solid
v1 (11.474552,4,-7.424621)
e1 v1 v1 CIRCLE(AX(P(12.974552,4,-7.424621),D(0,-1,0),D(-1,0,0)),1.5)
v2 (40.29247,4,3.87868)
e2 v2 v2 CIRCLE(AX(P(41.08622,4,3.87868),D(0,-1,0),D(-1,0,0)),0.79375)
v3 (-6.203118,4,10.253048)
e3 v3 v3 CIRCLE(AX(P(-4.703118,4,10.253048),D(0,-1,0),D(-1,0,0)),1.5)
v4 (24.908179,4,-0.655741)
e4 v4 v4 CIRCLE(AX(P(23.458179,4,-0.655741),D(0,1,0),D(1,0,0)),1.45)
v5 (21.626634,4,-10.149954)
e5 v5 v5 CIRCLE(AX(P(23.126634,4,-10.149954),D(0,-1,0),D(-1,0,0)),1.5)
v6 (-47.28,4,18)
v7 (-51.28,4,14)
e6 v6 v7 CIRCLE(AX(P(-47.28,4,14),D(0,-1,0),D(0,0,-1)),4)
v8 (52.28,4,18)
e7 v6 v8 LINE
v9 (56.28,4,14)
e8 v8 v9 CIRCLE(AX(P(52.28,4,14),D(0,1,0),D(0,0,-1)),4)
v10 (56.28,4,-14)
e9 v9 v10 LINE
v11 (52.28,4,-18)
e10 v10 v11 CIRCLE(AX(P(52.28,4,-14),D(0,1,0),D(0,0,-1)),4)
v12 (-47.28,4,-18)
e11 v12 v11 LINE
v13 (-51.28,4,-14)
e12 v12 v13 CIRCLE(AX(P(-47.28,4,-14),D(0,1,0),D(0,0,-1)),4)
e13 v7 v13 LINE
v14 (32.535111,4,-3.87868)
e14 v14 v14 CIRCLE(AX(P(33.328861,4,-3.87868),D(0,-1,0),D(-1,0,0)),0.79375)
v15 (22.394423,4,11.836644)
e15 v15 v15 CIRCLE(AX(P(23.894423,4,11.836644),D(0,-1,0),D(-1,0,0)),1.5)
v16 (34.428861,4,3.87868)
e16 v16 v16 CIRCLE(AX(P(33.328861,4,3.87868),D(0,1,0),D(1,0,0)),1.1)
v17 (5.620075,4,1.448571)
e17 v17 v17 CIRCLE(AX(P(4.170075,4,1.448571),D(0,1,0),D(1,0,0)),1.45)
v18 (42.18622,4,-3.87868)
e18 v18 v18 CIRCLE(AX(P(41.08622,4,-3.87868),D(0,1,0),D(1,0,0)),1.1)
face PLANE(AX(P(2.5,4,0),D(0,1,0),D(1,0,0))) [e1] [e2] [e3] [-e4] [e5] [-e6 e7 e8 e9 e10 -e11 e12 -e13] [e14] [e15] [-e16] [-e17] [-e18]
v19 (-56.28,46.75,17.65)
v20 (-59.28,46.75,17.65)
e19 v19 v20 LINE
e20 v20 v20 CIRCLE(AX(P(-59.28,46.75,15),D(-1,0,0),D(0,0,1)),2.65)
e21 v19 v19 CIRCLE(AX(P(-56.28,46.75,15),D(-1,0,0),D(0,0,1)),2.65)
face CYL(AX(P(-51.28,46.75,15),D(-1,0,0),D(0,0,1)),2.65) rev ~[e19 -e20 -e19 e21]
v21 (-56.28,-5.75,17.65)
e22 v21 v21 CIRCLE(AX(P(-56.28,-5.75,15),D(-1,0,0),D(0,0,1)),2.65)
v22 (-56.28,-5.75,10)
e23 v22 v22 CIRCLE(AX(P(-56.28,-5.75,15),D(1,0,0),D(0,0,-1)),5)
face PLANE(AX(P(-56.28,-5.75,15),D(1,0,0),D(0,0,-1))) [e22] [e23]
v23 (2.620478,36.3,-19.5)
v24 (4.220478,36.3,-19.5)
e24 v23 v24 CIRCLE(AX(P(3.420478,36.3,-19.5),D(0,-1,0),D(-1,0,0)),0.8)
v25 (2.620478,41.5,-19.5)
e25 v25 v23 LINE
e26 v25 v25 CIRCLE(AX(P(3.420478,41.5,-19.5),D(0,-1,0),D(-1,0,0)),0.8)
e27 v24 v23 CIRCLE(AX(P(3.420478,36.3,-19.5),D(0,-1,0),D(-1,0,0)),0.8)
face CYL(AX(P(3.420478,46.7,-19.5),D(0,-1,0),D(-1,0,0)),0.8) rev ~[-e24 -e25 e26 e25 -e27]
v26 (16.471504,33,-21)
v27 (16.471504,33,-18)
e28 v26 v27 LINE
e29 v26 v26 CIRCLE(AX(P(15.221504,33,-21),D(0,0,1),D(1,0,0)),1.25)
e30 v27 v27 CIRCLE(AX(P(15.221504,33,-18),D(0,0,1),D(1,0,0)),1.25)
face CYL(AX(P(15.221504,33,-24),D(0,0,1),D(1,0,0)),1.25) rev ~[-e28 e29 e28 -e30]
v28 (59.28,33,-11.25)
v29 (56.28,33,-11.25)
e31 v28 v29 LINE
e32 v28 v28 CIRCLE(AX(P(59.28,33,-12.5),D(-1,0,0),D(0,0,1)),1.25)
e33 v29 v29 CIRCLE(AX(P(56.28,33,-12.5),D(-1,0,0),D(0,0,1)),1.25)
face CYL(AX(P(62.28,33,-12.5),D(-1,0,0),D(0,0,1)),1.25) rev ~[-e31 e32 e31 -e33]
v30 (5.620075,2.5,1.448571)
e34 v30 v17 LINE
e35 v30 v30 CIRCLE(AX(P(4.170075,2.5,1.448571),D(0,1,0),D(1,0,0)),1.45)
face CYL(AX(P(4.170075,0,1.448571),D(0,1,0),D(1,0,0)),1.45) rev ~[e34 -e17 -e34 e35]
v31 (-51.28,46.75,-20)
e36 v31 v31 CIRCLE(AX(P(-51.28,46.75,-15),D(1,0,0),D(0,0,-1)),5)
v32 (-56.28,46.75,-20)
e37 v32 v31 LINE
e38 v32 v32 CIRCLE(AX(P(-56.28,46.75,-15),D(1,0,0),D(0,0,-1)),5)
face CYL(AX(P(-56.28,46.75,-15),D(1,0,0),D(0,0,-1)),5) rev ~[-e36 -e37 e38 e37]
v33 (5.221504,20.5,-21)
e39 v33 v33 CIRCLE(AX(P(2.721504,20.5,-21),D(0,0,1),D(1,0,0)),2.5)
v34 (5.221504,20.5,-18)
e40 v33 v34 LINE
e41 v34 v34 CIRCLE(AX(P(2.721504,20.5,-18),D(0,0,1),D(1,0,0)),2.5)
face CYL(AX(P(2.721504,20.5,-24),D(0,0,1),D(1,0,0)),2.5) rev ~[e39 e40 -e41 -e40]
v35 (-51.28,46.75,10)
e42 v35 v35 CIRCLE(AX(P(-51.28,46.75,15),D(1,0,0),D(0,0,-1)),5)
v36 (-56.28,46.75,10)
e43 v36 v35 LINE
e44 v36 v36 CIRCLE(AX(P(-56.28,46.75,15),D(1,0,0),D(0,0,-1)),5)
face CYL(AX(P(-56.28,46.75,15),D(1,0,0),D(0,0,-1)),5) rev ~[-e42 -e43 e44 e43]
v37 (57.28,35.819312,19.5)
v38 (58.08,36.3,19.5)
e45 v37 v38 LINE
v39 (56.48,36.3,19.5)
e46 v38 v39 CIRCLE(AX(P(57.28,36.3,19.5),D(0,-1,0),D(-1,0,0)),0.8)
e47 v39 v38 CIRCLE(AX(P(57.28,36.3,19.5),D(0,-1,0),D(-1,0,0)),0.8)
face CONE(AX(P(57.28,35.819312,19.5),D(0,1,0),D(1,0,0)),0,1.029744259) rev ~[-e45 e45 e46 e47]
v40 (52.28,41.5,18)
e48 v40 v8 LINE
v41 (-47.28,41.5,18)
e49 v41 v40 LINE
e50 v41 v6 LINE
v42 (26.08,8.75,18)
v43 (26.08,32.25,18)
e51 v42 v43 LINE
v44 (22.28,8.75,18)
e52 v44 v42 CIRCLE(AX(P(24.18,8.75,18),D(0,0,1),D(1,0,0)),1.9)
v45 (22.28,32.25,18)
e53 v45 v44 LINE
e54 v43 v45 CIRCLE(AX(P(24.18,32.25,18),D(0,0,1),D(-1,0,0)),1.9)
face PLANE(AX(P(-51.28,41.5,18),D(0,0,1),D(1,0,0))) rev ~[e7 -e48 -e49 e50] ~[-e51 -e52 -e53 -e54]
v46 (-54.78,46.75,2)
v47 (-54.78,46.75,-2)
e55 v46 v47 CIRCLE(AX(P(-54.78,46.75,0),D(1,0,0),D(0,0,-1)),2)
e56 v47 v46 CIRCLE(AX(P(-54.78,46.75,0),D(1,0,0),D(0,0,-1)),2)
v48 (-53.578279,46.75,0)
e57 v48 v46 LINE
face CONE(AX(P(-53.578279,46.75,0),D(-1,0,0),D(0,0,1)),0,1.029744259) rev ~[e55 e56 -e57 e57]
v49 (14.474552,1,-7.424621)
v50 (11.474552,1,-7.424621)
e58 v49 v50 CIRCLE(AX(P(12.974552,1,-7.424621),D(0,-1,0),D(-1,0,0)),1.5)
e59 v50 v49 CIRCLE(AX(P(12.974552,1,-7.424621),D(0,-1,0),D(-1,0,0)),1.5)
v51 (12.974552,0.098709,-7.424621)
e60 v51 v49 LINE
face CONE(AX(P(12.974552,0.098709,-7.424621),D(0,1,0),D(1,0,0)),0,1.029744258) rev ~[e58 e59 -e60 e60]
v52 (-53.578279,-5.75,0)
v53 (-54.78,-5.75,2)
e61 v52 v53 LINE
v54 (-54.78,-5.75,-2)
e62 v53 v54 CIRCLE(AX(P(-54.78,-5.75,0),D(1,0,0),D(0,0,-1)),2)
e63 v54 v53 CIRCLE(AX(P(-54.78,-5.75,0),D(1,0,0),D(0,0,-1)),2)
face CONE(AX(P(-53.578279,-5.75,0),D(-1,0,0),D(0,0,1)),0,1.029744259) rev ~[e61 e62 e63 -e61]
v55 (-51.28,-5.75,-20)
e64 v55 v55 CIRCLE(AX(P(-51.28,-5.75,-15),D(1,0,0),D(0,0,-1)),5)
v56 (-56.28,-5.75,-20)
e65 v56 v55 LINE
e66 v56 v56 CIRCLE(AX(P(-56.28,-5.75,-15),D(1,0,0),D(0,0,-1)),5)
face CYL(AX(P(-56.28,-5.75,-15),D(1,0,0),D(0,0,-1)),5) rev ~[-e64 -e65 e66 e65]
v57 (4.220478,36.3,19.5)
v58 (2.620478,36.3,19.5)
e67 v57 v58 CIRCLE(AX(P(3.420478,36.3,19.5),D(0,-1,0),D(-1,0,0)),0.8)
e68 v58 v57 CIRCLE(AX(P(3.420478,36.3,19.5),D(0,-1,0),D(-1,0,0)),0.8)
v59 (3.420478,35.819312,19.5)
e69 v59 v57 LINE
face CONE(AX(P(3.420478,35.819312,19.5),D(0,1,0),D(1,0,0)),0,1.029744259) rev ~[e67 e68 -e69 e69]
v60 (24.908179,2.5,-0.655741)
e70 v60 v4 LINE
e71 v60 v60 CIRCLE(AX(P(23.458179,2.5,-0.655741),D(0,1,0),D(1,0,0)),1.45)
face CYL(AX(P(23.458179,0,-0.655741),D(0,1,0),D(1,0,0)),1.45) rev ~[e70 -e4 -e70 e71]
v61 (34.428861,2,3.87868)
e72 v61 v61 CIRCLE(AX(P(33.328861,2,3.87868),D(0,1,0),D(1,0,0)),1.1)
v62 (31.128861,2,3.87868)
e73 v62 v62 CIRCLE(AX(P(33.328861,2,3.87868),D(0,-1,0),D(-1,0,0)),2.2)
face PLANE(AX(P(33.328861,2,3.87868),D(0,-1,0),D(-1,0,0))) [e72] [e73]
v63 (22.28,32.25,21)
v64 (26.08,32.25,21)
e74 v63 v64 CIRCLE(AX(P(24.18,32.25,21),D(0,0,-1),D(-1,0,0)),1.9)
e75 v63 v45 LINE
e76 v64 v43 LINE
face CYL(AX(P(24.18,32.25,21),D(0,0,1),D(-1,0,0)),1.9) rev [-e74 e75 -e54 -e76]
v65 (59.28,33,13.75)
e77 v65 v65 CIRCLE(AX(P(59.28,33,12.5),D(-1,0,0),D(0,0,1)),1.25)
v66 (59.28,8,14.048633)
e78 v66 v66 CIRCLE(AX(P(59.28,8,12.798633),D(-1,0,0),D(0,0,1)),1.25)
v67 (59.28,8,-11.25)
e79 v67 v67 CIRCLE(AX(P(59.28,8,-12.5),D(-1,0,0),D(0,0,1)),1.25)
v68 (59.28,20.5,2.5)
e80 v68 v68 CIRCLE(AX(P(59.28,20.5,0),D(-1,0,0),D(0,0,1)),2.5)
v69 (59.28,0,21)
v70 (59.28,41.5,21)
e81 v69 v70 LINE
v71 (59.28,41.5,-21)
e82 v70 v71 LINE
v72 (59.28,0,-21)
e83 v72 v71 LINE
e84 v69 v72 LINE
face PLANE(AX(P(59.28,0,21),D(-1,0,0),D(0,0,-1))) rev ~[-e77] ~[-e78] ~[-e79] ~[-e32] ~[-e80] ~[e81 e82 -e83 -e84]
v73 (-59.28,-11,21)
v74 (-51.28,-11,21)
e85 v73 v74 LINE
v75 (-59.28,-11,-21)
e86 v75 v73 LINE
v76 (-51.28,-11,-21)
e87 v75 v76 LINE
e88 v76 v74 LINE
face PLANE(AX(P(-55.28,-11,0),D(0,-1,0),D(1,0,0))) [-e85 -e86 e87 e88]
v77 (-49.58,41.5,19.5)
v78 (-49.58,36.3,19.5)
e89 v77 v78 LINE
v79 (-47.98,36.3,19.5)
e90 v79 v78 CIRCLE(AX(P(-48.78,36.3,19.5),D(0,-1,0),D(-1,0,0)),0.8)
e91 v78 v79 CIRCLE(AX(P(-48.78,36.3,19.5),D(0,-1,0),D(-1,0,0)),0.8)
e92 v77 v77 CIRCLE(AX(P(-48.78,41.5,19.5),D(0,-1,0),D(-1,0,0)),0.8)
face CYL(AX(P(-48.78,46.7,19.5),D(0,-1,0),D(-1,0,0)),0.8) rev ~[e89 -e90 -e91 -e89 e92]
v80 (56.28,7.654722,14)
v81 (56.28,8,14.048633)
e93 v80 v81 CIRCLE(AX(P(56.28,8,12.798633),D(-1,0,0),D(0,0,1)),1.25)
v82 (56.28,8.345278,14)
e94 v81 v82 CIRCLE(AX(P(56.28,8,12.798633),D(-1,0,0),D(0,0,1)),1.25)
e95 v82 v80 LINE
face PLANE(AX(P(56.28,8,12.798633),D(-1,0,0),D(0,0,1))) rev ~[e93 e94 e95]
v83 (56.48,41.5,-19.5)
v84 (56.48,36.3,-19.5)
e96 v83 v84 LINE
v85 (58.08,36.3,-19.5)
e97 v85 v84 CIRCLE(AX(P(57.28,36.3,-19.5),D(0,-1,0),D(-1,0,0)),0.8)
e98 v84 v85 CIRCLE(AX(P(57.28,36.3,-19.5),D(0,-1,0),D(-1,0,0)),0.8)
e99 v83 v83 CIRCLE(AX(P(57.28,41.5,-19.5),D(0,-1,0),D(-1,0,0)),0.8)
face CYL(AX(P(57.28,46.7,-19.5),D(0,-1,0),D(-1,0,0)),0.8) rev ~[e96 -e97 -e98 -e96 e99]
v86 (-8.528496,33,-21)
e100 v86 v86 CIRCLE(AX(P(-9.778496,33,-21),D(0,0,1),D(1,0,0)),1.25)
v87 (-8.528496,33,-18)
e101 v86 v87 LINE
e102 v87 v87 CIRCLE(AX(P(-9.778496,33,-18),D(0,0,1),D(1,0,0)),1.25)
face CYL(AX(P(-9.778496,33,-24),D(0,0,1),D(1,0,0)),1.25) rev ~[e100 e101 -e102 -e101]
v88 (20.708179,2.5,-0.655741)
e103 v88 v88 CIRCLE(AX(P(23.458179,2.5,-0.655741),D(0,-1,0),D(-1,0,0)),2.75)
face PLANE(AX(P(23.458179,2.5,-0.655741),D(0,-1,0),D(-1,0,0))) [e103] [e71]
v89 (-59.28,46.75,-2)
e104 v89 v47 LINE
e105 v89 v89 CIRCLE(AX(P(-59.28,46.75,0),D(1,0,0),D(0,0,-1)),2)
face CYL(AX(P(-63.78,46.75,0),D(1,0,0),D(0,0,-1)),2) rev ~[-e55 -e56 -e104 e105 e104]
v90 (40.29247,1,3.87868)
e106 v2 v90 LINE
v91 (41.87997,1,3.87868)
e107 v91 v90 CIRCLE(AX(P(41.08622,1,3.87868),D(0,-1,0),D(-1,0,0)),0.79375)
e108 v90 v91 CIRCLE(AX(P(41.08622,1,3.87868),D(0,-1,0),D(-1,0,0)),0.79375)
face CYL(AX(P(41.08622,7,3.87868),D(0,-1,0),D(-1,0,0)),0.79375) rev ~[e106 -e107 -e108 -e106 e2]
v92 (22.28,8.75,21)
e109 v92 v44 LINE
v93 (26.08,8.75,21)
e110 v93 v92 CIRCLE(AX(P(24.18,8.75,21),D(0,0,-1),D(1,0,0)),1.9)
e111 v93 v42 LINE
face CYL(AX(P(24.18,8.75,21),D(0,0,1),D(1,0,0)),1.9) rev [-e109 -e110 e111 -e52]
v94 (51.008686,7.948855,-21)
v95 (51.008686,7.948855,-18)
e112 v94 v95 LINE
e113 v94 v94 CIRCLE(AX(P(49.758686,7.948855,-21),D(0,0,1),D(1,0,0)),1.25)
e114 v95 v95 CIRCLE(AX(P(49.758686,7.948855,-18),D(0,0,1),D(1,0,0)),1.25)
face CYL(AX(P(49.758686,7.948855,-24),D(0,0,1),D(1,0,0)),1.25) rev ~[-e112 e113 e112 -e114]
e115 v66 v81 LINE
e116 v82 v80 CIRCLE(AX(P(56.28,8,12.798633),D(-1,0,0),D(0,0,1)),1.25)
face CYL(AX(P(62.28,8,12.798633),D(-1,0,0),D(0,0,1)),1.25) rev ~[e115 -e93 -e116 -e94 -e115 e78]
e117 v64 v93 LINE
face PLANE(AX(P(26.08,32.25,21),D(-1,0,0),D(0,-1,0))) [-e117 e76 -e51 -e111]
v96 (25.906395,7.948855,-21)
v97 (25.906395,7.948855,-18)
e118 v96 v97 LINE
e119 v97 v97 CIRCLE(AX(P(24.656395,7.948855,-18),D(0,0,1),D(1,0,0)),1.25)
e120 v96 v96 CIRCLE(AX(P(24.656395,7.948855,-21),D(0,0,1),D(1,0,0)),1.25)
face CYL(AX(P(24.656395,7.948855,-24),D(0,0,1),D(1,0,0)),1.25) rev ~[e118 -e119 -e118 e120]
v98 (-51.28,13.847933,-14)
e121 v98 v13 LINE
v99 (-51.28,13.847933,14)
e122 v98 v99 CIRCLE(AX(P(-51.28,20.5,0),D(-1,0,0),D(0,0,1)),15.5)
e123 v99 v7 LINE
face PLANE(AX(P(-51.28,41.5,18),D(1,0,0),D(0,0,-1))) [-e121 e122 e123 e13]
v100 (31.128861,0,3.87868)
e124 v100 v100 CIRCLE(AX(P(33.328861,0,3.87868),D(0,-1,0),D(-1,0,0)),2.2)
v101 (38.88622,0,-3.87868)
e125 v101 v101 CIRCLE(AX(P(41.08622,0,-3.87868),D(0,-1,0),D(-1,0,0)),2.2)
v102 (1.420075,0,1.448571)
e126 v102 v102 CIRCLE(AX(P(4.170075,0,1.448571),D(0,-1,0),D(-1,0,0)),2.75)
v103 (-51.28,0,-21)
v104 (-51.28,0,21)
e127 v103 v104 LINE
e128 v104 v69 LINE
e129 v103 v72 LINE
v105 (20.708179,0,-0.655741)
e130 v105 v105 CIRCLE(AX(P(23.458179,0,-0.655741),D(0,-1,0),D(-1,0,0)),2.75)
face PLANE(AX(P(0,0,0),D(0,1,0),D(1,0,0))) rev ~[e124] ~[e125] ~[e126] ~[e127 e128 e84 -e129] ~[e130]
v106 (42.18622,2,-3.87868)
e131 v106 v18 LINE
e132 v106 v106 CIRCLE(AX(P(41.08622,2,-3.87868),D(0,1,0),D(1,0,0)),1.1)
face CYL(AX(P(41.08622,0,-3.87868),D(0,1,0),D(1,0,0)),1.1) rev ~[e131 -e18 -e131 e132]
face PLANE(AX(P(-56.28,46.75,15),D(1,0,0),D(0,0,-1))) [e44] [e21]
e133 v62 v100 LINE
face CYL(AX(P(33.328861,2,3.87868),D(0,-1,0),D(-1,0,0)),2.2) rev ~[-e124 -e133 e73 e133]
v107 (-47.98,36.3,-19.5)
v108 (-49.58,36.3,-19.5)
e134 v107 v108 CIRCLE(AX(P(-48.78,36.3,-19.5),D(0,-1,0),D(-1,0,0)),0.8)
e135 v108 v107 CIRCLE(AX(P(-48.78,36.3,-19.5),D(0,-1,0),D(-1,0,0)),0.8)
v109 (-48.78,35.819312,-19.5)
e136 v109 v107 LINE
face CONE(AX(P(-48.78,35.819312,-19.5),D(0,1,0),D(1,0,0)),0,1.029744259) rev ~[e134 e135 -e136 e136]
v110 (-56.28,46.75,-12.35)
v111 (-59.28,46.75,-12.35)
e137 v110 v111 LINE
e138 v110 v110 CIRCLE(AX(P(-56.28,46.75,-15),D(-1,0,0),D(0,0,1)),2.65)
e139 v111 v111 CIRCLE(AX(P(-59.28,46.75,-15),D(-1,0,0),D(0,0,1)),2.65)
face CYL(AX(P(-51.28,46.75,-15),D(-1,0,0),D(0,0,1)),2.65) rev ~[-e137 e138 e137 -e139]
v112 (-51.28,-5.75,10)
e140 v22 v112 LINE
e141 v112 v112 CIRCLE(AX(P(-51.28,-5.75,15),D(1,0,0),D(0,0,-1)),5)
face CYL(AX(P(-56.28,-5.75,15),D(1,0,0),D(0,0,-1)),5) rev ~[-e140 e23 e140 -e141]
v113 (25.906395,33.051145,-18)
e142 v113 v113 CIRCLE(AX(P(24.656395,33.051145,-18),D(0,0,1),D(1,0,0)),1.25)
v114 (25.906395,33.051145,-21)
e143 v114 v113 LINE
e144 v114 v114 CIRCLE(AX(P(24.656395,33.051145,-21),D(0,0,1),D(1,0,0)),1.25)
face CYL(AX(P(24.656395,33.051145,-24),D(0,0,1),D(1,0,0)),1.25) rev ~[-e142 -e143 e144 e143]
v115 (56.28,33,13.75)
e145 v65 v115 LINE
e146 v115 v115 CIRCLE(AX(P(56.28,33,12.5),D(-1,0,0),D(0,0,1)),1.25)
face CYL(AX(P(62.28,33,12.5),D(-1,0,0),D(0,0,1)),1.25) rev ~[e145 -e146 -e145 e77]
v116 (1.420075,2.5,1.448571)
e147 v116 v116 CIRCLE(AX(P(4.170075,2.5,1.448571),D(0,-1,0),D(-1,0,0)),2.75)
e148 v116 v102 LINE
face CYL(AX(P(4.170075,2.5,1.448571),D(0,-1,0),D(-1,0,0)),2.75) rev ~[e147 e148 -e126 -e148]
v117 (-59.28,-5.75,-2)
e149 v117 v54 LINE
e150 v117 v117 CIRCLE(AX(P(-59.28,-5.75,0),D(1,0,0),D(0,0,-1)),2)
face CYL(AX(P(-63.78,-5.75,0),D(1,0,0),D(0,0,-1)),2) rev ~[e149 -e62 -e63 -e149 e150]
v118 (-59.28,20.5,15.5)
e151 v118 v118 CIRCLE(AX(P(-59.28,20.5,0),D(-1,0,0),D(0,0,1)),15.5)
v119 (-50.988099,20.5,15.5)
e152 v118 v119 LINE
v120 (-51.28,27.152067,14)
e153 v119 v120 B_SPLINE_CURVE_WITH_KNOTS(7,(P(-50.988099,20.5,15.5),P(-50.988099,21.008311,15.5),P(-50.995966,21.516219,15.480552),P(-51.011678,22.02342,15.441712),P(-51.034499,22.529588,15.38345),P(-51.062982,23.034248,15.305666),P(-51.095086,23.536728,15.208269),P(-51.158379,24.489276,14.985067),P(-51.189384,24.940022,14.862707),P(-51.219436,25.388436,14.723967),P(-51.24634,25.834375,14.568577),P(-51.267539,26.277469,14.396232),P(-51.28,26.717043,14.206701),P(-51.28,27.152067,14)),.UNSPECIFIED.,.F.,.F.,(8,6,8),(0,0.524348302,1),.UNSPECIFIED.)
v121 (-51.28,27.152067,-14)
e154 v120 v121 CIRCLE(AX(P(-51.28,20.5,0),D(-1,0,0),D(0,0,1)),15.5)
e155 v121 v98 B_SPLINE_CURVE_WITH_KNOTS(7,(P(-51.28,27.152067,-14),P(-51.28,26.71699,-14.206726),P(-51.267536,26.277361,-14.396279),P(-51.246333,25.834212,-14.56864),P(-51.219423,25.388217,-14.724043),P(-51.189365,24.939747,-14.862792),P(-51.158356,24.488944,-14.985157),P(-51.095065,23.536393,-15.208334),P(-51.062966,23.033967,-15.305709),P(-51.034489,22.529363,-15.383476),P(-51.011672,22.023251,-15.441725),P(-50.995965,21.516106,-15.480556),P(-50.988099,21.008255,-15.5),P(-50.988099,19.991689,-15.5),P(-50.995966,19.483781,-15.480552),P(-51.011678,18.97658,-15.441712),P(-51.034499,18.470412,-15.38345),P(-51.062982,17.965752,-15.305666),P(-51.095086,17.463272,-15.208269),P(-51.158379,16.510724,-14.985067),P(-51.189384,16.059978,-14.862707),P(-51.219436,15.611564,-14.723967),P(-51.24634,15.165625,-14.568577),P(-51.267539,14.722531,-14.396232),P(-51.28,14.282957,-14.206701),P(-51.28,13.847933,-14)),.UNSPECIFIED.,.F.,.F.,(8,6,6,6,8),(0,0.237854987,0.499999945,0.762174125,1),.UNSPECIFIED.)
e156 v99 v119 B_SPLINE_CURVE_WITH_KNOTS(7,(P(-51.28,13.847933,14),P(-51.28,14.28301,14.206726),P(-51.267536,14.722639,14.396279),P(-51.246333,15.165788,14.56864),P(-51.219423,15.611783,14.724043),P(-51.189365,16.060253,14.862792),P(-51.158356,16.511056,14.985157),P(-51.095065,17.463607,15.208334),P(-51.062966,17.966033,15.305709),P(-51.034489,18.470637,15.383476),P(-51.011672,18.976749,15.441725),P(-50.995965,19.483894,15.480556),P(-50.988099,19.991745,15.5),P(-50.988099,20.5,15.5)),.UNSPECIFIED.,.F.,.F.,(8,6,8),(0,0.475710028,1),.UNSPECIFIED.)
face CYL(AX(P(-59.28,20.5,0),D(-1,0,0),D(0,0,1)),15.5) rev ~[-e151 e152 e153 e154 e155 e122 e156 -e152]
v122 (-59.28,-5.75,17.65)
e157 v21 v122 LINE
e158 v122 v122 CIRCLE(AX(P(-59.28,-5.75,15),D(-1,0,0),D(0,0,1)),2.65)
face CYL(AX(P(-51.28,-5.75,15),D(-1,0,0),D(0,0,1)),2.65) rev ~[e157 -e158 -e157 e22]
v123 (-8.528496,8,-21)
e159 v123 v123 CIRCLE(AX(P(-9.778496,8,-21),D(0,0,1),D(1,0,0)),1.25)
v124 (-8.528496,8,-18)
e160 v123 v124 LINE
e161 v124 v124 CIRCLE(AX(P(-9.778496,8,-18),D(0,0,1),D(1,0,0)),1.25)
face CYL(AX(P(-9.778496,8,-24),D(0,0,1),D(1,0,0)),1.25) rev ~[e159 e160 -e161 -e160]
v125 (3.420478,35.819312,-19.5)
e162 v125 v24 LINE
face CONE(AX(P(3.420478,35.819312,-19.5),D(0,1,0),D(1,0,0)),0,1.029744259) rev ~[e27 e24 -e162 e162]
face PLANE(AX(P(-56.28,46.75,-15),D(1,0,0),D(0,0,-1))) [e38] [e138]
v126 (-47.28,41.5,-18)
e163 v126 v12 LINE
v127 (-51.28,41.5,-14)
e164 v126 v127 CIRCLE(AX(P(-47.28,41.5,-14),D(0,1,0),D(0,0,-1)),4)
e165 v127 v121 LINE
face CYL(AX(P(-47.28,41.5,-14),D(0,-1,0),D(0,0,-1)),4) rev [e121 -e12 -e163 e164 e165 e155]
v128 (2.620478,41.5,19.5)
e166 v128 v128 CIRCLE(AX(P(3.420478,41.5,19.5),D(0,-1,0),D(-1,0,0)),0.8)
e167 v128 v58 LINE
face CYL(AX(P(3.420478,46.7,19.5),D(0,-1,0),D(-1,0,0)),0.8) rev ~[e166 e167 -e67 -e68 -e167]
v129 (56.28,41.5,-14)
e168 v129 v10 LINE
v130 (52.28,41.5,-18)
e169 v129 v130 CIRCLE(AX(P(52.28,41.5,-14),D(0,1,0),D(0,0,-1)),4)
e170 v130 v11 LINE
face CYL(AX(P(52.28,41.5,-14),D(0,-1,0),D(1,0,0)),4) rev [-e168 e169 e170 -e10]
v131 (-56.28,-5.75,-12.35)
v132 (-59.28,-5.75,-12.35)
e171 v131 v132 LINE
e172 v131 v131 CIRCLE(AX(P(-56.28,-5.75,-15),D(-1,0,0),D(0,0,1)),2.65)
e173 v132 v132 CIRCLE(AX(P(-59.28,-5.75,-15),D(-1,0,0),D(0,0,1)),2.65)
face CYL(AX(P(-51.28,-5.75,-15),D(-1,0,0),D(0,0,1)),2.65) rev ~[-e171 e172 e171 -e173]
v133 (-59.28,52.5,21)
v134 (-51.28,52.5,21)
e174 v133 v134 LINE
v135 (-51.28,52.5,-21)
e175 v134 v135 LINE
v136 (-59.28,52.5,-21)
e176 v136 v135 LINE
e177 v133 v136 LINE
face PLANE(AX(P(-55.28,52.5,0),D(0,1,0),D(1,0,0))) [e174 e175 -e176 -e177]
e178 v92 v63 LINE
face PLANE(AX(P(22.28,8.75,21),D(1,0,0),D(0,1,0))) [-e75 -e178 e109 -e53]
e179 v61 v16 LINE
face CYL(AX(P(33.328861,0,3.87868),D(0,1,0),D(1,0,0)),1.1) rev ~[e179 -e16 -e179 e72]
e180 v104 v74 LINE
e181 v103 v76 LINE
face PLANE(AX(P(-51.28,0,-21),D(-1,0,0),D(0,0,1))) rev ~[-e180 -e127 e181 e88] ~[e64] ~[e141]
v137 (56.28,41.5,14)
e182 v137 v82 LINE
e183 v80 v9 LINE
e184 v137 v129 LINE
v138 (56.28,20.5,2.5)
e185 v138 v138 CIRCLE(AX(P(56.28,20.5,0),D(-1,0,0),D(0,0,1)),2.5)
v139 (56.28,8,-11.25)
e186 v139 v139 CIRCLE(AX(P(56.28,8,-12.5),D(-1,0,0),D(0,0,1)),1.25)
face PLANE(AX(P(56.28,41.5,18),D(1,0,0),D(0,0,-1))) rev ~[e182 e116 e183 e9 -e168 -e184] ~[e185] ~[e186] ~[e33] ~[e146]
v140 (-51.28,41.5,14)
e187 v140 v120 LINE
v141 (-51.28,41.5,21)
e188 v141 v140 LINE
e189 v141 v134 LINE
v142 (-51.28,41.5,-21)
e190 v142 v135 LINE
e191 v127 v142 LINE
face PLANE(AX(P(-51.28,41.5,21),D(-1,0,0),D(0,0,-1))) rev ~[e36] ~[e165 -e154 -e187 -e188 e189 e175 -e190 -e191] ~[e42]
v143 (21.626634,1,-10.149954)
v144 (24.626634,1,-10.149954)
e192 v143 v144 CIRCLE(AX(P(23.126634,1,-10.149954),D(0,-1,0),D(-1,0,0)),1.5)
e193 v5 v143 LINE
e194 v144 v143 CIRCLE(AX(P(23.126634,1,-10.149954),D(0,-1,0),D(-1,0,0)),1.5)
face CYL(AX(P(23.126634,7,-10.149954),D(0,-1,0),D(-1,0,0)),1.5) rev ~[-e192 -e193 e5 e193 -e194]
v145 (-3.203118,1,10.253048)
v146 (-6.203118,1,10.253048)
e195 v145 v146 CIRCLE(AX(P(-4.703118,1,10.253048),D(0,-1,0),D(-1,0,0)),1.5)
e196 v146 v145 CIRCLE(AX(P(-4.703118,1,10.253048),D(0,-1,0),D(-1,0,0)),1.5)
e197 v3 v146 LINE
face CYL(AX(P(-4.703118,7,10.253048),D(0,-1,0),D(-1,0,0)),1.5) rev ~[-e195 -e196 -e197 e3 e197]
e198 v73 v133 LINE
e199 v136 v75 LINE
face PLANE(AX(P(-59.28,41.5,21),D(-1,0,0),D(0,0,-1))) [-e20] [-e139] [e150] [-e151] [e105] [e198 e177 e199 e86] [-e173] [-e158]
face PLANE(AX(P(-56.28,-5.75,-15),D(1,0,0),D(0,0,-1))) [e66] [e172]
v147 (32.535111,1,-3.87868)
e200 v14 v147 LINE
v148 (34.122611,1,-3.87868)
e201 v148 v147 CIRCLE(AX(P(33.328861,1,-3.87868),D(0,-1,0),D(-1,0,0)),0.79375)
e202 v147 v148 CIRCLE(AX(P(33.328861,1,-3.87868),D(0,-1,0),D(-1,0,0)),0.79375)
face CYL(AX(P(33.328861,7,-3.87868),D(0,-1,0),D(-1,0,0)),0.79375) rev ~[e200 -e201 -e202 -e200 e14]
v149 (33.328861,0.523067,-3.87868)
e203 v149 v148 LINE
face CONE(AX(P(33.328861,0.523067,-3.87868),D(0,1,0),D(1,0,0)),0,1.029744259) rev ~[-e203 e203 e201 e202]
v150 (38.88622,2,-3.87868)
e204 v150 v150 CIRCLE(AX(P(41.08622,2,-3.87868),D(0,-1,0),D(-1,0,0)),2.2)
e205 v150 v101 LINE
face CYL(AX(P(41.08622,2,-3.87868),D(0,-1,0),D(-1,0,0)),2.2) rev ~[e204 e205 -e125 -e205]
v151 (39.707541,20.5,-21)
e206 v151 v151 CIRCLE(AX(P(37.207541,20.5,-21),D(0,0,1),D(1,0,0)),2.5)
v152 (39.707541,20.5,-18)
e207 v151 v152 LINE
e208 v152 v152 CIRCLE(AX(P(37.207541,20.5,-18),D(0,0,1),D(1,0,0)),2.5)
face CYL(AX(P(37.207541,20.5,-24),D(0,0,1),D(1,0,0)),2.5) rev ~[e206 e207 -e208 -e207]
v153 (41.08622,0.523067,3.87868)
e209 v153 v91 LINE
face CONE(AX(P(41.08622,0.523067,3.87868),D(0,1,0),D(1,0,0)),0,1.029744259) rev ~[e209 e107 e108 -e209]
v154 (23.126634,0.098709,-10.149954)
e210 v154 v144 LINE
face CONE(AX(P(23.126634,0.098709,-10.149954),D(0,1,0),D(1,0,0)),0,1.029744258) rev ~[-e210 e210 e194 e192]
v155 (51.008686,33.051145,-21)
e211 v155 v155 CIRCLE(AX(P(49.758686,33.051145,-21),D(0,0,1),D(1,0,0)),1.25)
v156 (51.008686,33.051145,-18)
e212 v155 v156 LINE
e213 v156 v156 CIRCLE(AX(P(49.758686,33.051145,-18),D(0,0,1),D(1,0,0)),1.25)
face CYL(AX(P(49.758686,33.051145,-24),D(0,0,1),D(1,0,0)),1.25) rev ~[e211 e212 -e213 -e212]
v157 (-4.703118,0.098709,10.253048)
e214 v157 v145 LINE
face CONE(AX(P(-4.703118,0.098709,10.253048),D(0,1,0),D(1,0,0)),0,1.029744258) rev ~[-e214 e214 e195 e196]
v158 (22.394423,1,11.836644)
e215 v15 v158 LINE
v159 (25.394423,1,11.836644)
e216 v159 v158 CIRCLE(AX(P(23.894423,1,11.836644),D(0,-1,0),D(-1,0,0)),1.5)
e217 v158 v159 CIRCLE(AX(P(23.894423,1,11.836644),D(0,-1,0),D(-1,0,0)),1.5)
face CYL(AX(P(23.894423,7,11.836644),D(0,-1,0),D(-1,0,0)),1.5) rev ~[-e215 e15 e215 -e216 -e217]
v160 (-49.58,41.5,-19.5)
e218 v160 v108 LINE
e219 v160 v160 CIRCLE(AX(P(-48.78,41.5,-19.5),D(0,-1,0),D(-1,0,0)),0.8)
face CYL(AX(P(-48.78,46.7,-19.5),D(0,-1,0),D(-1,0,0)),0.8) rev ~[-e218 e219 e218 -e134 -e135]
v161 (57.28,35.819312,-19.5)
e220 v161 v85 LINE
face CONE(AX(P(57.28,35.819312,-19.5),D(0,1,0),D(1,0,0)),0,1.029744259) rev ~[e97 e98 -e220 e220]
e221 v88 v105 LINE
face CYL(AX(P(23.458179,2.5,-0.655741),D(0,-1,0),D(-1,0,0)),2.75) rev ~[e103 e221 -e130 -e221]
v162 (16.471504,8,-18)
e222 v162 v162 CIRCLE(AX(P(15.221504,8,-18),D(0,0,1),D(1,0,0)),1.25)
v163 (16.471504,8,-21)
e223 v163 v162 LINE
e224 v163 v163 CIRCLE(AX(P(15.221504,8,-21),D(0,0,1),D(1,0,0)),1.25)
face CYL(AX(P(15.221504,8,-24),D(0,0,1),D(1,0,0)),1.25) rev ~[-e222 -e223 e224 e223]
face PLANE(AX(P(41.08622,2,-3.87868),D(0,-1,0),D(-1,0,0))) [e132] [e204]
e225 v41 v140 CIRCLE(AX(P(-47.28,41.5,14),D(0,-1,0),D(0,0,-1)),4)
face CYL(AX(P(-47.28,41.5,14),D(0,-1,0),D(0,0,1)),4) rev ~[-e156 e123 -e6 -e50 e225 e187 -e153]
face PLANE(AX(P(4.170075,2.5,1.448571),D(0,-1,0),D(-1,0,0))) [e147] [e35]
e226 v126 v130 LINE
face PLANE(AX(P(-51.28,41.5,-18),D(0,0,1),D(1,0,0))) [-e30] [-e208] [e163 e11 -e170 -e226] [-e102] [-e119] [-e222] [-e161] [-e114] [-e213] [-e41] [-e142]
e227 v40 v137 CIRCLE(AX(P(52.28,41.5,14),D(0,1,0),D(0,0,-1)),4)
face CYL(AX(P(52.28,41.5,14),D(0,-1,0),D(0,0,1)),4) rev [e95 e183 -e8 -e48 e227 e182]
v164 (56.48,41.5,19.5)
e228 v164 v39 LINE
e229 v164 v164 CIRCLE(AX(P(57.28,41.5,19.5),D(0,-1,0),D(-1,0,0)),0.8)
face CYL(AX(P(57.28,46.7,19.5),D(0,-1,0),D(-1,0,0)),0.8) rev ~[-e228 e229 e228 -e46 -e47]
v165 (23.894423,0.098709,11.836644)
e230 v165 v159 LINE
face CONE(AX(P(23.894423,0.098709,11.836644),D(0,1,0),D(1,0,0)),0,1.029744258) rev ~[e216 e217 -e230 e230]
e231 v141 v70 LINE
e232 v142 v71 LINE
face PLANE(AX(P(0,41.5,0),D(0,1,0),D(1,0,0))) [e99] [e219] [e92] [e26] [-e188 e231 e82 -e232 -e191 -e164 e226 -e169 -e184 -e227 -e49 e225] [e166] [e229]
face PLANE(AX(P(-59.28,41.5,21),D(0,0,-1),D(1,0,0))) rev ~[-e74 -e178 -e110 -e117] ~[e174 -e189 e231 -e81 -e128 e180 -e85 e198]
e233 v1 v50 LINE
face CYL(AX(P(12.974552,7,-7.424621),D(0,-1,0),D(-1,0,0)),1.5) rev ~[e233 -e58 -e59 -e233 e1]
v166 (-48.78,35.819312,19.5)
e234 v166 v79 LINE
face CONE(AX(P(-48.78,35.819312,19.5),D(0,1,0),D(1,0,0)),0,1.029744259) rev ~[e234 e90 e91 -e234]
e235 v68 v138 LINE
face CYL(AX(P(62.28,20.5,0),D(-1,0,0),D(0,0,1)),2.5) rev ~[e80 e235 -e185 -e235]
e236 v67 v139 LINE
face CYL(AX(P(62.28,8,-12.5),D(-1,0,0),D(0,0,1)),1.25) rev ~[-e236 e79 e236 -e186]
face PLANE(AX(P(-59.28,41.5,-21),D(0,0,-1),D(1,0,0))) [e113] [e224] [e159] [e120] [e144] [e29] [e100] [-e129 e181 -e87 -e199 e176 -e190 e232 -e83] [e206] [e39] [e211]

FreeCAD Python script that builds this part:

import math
import FreeCAD as App
import Part
import Sketcher

V = App.Vector
Q = App.Units.Quantity


def edges_at(feature, points):
    """Names of the edges that pass closest to the given points."""
    edges = feature.Shape.Edges
    near = lambda p: min(range(len(edges)), key=lambda i: edges[i].distToShape(Part.Vertex(*p))[0])
    return sorted({f"Edge{near(p) + 1}" for p in points})

doc = App.newDocument("Part")
body = doc.addObject("PartDesign::Body", "Body")

# Sketch on XZ plane
sketch1 = body.newObject("Sketcher::SketchObject", "Sketch")
sketch1.AttachmentSupport = (doc.getObject("XZ_Plane"), [""])
sketch1.MapMode = "FlatFace"
sketch1.addGeometry([
    Part.LineSegment(V(-59, -21, 0), V(-59, 21, 0)),
    Part.LineSegment(V(-59, 21, 0), V(59, 21, 0)),
    Part.LineSegment(V(59, 21, 0), V(59, -21, 0)),
    Part.LineSegment(V(59, -21, 0), V(-59, -21, 0)),
], False)
sketch1.addConstraint([
    Sketcher.Constraint("Coincident", 0, 2, 1, 1),
    Sketcher.Constraint("Coincident", 1, 2, 2, 1),
    Sketcher.Constraint("Coincident", 2, 2, 3, 1),
    Sketcher.Constraint("Coincident", 3, 2, 0, 1),
    Sketcher.Constraint("Vertical", 0),
    Sketcher.Constraint("Horizontal", 1),
    Sketcher.Constraint("Vertical", 2),
    Sketcher.Constraint("Horizontal", 3),
    Sketcher.Constraint("Symmetric", 0, 2, 2, 2, -1, 1),
    Sketcher.Constraint("DistanceY", 0, 1, 0, 2, Q("42 mm")),
    Sketcher.Constraint("DistanceX", 1, 1, 1, 2, Q("118.56 mm")),
])
pad1 = body.newObject("PartDesign::Pad", "Pad")
pad1.Profile = sketch1
pad1.Length = 41.5
pad1.Reversed = True

# Sketch on XZ plane
sketch2 = body.newObject("Sketcher::SketchObject", "Sketch001")
sketch2.AttachmentSupport = (doc.getObject("XZ_Plane"), [""])
sketch2.MapMode = "FlatFace"
sketch2.AttachmentOffset = App.Placement(V(0, 0, -41.5), App.Rotation())
sketch2.addGeometry([
    Part.LineSegment(V(-51, -18, 0), V(-51, 18, 0)),
    Part.LineSegment(V(-51, 18, 0), V(56, 18, 0)),
    Part.LineSegment(V(56, 18, 0), V(56, -18, 0)),
    Part.LineSegment(V(56, -18, 0), V(-51, -18, 0)),
], False)
sketch2.addConstraint([
    Sketcher.Constraint("Coincident", 0, 2, 1, 1),
    Sketcher.Constraint("Coincident", 1, 2, 2, 1),
    Sketcher.Constraint("Coincident", 2, 2, 3, 1),
    Sketcher.Constraint("Coincident", 3, 2, 0, 1),
    Sketcher.Constraint("Vertical", 0),
    Sketcher.Constraint("Horizontal", 1),
    Sketcher.Constraint("Vertical", 2),
    Sketcher.Constraint("Horizontal", 3),
    Sketcher.Constraint("DistanceY", 0, 1, 0, 2, Q("36 mm")),
    Sketcher.Constraint("DistanceY", -1, 1, 0, 2, Q("18 mm")),
    Sketcher.Constraint("DistanceX", 1, 1, 1, 2, Q("107.56 mm")),
    Sketcher.Constraint("DistanceX", 0, 2, -1, 1, Q("51.28 mm")),
])
pocket1 = body.newObject("PartDesign::Pocket", "Pocket")
pocket1.Profile = sketch2
pocket1.Length = 37.5
pocket1.Reversed = True
doc.recompute()

fillet = body.newObject("PartDesign::Fillet", "Fillet")
fillet.Base = (pocket1, edges_at(pocket1, [
    (-51.28, 22.75, 18),
    (-51.28, 22.75, -18),
    (56.28, 22.75, -18),
    (56.28, 22.75, 18),
]))
fillet.Radius = 4

# Sketch on YZ plane
sketch3 = body.newObject("Sketcher::SketchObject", "Sketch002")
sketch3.AttachmentSupport = (doc.getObject("YZ_Plane"), [""])
sketch3.MapMode = "FlatFace"
sketch3.AttachmentOffset = App.Placement(V(0, 0, -59.28), App.Rotation())
sketch3.addGeometry(Part.Circle(V(20, 0, 0), V(0, 0, 1), 16), False)
sketch3.addConstraint([
    Sketcher.Constraint("PointOnObject", 0, 3, -1),
    Sketcher.Constraint("Diameter", 0, Q("31 mm")),
    Sketcher.Constraint("DistanceX", -1, 1, 0, 3, Q("20.5 mm")),
])
pocket2 = body.newObject("PartDesign::Pocket", "Pocket001")
pocket2.Profile = sketch3
pocket2.Length = 8.291901
pocket2.Reversed = True

# Sketch on XY plane
sketch4 = body.newObject("Sketcher::SketchObject", "Sketch003")
sketch4.AttachmentSupport = (doc.getObject("XY_Plane"), [""])
sketch4.MapMode = "FlatFace"
sketch4.AttachmentOffset = App.Placement(V(0, 0, 21), App.Rotation())
sketch4.addGeometry([
    Part.LineSegment(V(26.1, 8.8, 0), V(26.1, 32.2, 0)),
    Part.ArcOfCircle(Part.Circle(V(24.2, 32.2, 0), V(0, 0, 1), 1.9), math.radians(0), math.radians(180)),
    Part.LineSegment(V(22.3, 32.2, 0), V(22.3, 8.8, 0)),
    Part.ArcOfCircle(Part.Circle(V(24.2, 8.8, 0), V(0, 0, 1), 1.9), math.radians(180), math.radians(360)),
], False)
sketch4.addConstraint([
    Sketcher.Constraint("Tangent", 0, 2, 1, 1),
    Sketcher.Constraint("Tangent", 1, 2, 2, 1),
    Sketcher.Constraint("Tangent", 2, 2, 3, 1),
    Sketcher.Constraint("Tangent", 3, 2, 0, 1),
    Sketcher.Constraint("Vertical", 0),
    Sketcher.Constraint("Vertical", 2),
    Sketcher.Constraint("Radius", 1, Q("1.9 mm")),
    Sketcher.Constraint("DistanceY", 0, 1, 0, 2, Q("23.5 mm")),
    Sketcher.Constraint("DistanceX", -1, 1, 1, 3, Q("24.18 mm")),
    Sketcher.Constraint("DistanceY", -1, 1, 1, 3, Q("32.25 mm")),
])
pocket3 = body.newObject("PartDesign::Pocket", "Pocket002")
pocket3.Profile = sketch4
pocket3.Type = "UpToFirst"

# Sketch on XZ plane
sketch5 = body.newObject("Sketcher::SketchObject", "Sketch004")
sketch5.AttachmentSupport = (doc.getObject("XZ_Plane"), [""])
sketch5.MapMode = "FlatFace"
sketch5.addGeometry([
    Part.LineSegment(V(-59, 21, 0), V(-59, -21, 0)),
    Part.LineSegment(V(-59, -21, 0), V(-51, -21, 0)),
    Part.LineSegment(V(-51, -21, 0), V(-51, 21, 0)),
    Part.LineSegment(V(-51, 21, 0), V(-59, 21, 0)),
], False)
sketch5.addConstraint([
    Sketcher.Constraint("Coincident", 0, 2, 1, 1),
    Sketcher.Constraint("Coincident", 1, 2, 2, 1),
    Sketcher.Constraint("Coincident", 2, 2, 3, 1),
    Sketcher.Constraint("Coincident", 3, 2, 0, 1),
    Sketcher.Constraint("Vertical", 0),
    Sketcher.Constraint("Horizontal", 1),
    Sketcher.Constraint("Vertical", 2),
    Sketcher.Constraint("Horizontal", 3),
    Sketcher.Constraint("DistanceX", 1, 1, 1, 2, Q("8 mm")),
    Sketcher.Constraint("DistanceY", 0, 2, 0, 1, Q("42 mm")),
    Sketcher.Constraint("DistanceY", 0, 2, -1, 1, Q("21 mm")),
    Sketcher.Constraint("DistanceX", 0, 2, -1, 1, Q("59.28 mm")),
])
pad2 = body.newObject("PartDesign::Pad", "Pad001")
pad2.Profile = sketch5
pad2.Length = 11

# Sketch on XZ plane
sketch6 = body.newObject("Sketcher::SketchObject", "Sketch005")
sketch6.AttachmentSupport = (doc.getObject("XZ_Plane"), [""])
sketch6.MapMode = "FlatFace"
sketch6.AttachmentOffset = App.Placement(V(0, 0, -41.5), App.Rotation())
sketch6.addGeometry([
    Part.LineSegment(V(-59, -21, 0), V(-59, 21, 0)),
    Part.LineSegment(V(-59, 21, 0), V(-51, 21, 0)),
    Part.LineSegment(V(-51, 21, 0), V(-51, -21, 0)),
    Part.LineSegment(V(-51, -21, 0), V(-59, -21, 0)),
], False)
sketch6.addConstraint([
    Sketcher.Constraint("Coincident", 0, 2, 1, 1),
    Sketcher.Constraint("Coincident", 1, 2, 2, 1),
    Sketcher.Constraint("Coincident", 2, 2, 3, 1),
    Sketcher.Constraint("Coincident", 3, 2, 0, 1),
    Sketcher.Constraint("Vertical", 0),
    Sketcher.Constraint("Horizontal", 1),
    Sketcher.Constraint("Vertical", 2),
    Sketcher.Constraint("Horizontal", 3),
    Sketcher.Constraint("DistanceX", 1, 1, 1, 2, Q("8 mm")),
    Sketcher.Constraint("DistanceY", 0, 1, 0, 2, Q("42 mm")),
    Sketcher.Constraint("DistanceY", -1, 1, 0, 2, Q("21 mm")),
    Sketcher.Constraint("DistanceX", 0, 2, -1, 1, Q("59.28 mm")),
])
pad3 = body.newObject("PartDesign::Pad", "Pad002")
pad3.Profile = sketch6
pad3.Length = 11
pad3.Reversed = True

# Sketch on YZ plane
sketch7 = body.newObject("Sketcher::SketchObject", "Sketch006")
sketch7.AttachmentSupport = (doc.getObject("YZ_Plane"), [""])
sketch7.MapMode = "FlatFace"
sketch7.AttachmentOffset = App.Placement(V(0, 0, -59.28), App.Rotation())
sketch7.addGeometry([
    Part.Circle(V(46.8, 0, 0), V(0, 0, 1), 2),
    Part.Circle(V(-5.8, 0, 0), V(0, 0, 1), 2),
], False)
sketch7.addConstraint([
    Sketcher.Constraint("Equal", 0, 1),
    Sketcher.Constraint("PointOnObject", 0, 3, -1),
    Sketcher.Constraint("PointOnObject", 1, 3, -1),
    Sketcher.Constraint("Diameter", 0, Q("4 mm")),
    Sketcher.Constraint("DistanceX", 1, 3, 0, 3, Q("52.5 mm")),
    Sketcher.Constraint("DistanceX", -1, 1, 0, 3, Q("46.75 mm")),
])
doc.recompute()
hole = body.newObject("PartDesign::Hole", "Hole")
hole.Profile = sketch7
hole.ThreadType = "None"
hole.Diameter = 4
hole.DepthType = "Dimension"
hole.Depth = 4.5
hole.DrillPoint = "Angled"
hole.DrillPointAngle = 118
hole.Reversed = True

# Sketch on YZ plane
sketch8 = body.newObject("Sketcher::SketchObject", "Sketch007")
sketch8.AttachmentSupport = (doc.getObject("YZ_Plane"), [""])
sketch8.MapMode = "FlatFace"
sketch8.AttachmentOffset = App.Placement(V(0, 0, -51.28), App.Rotation())
sketch8.addGeometry([
    Part.Circle(V(46.8, 15, 0), V(0, 0, 1), 2.6),
    Part.Circle(V(46.8, -15, 0), V(0, 0, 1), 2.6),
    Part.Circle(V(-5.8, 15, 0), V(0, 0, 1), 2.6),
    Part.Circle(V(-5.8, -15, 0), V(0, 0, 1), 2.6),
], False)
sketch8.addConstraint([
    Sketcher.Constraint("Equal", 0, 1),
    Sketcher.Constraint("Equal", 1, 2),
    Sketcher.Constraint("Equal", 2, 3),
    Sketcher.Constraint("Symmetric", 0, 3, 1, 3, -1),
    Sketcher.Constraint("Symmetric", 2, 3, 3, 3, -1),
    Sketcher.Constraint("Horizontal", 0, 3, 2, 3),
    Sketcher.Constraint("Diameter", 0, Q("5.3 mm")),
    Sketcher.Constraint("DistanceY", -1, 1, 0, 3, Q("15 mm")),
    Sketcher.Constraint("DistanceX", 2, 3, 0, 3, Q("52.5 mm")),
    Sketcher.Constraint("DistanceX", -1, 1, 0, 3, Q("46.75 mm")),
])
doc.recompute()
hole2 = body.newObject("PartDesign::Hole", "Hole001")
hole2.Profile = sketch8
hole2.ThreadType = "None"
hole2.Diameter = 5.3
hole2.DepthType = "ThroughAll"
hole2.HoleCutType = "Counterbore"
hole2.HoleCutDiameter = 10
hole2.HoleCutDepth = 5

# Sketch on XY plane
sketch9 = body.newObject("Sketcher::SketchObject", "Sketch008")
sketch9.AttachmentSupport = (doc.getObject("XY_Plane"), [""])
sketch9.MapMode = "FlatFace"
sketch9.AttachmentOffset = App.Placement(V(0, 0, -21), App.Rotation())
sketch9.addGeometry([
    Part.Circle(V(2.7, 20.5, 0), V(0, 0, 1), 2.5),
    Part.Circle(V(37.2, 20.5, 0), V(0, 0, 1), 2.5),
], False)
sketch9.addConstraint([
    Sketcher.Constraint("Equal", 0, 1),
    Sketcher.Constraint("Horizontal", 0, 3, 1, 3),
    Sketcher.Constraint("Diameter", 0, Q("5 mm")),
    Sketcher.Constraint("DistanceY", -1, 1, 0, 3, Q("20.5 mm")),
    Sketcher.Constraint("DistanceX", -1, 1, 1, 3, Q("37.207541 mm")),
    Sketcher.Constraint("DistanceX", -1, 1, 0, 3, Q("2.721504 mm")),
])
doc.recompute()
hole3 = body.newObject("PartDesign::Hole", "Hole002")
hole3.Profile = sketch9
hole3.ThreadType = "None"
hole3.Diameter = 5
hole3.DepthType = "Dimension"
hole3.Depth = 3
hole3.DrillPoint = "Flat"
hole3.Reversed = True

# Sketch on YZ plane
sketch10 = body.newObject("Sketcher::SketchObject", "Sketch009")
sketch10.AttachmentSupport = (doc.getObject("YZ_Plane"), [""])
sketch10.MapMode = "FlatFace"
sketch10.AttachmentOffset = App.Placement(V(0, 0, 59.28), App.Rotation())
sketch10.addGeometry(Part.Circle(V(20.5, 0, 0), V(0, 0, 1), 2.5), False)
sketch10.addConstraint([
    Sketcher.Constraint("PointOnObject", 0, 3, -1),
    Sketcher.Constraint("Diameter", 0, Q("5 mm")),
    Sketcher.Constraint("DistanceX", -1, 1, 0, 3, Q("20.5 mm")),
])
doc.recompute()
hole4 = body.newObject("PartDesign::Hole", "Hole003")
hole4.Profile = sketch10
hole4.ThreadType = "None"
hole4.Diameter = 5
hole4.DepthType = "Dimension"
hole4.Depth = 3
hole4.DrillPoint = "Flat"

# Sketch on XY plane
sketch11 = body.newObject("Sketcher::SketchObject", "Sketch010")
sketch11.AttachmentSupport = (doc.getObject("XY_Plane"), [""])
sketch11.MapMode = "FlatFace"
sketch11.AttachmentOffset = App.Placement(V(0, 0, -21), App.Rotation())
sketch11.addGeometry([
    Part.Circle(V(-9.8, 8, 0), V(0, 0, 1), 1.2),  # 0
    Part.Circle(V(15.2, 8, 0), V(0, 0, 1), 1.2),  # 1
    Part.Circle(V(15.2, 33, 0), V(0, 0, 1), 1.2),  # 2
    Part.Circle(V(-9.8, 33, 0), V(0, 0, 1), 1.2),  # 3
    Part.Circle(V(24.7, 7.9, 0), V(0, 0, 1), 1.2),  # 4
    Part.Circle(V(49.8, 7.9, 0), V(0, 0, 1), 1.2),  # 5
    Part.Circle(V(49.8, 33.1, 0), V(0, 0, 1), 1.2),  # 6
    Part.Circle(V(24.7, 33.1, 0), V(0, 0, 1), 1.2),  # 7
], False)
sketch11.addConstraint([
    Sketcher.Constraint("Equal", 0, 1),
    Sketcher.Constraint("Equal", 1, 2),
    Sketcher.Constraint("Equal", 2, 3),
    Sketcher.Constraint("Equal", 3, 4),
    Sketcher.Constraint("Equal", 4, 5),
    Sketcher.Constraint("Equal", 5, 6),
    Sketcher.Constraint("Equal", 6, 7),
    Sketcher.Constraint("Horizontal", 0, 3, 1, 3),
    Sketcher.Constraint("Horizontal", 2, 3, 3, 3),
    Sketcher.Constraint("Horizontal", 4, 3, 5, 3),
    Sketcher.Constraint("Horizontal", 6, 3, 7, 3),
    Sketcher.Constraint("Vertical", 1, 3, 2, 3),
    Sketcher.Constraint("Vertical", 0, 3, 3, 3),
    Sketcher.Constraint("Vertical", 5, 3, 6, 3),
    Sketcher.Constraint("Vertical", 4, 3, 7, 3),
    Sketcher.Constraint("Diameter", 0, Q("2.5 mm")),
    Sketcher.Constraint("DistanceY", -1, 1, 0, 3, Q("8 mm")),
    Sketcher.Constraint("DistanceY", -1, 1, 2, 3, Q("33 mm")),
    Sketcher.Constraint("DistanceX", 0, 3, 1, 3, Q("25 mm")),
    Sketcher.Constraint("DistanceX", 1, 3, 4, 3, Q("9.434892 mm")),
    Sketcher.Constraint("DistanceX", 4, 3, 5, 3, Q("25.102291 mm")),
    Sketcher.Constraint("DistanceY", 5, 3, 6, 3, Q("25.102291 mm")),
    Sketcher.Constraint("DistanceX", 0, 3, -1, 1, Q("9.778496 mm")),
    Sketcher.Constraint("DistanceY", -1, 1, 4, 3, Q("7.948855 mm")),
])
doc.recompute()
hole5 = body.newObject("PartDesign::Hole", "Hole004")
hole5.Profile = sketch11
hole5.ThreadType = "None"
hole5.Diameter = 2.5
hole5.DepthType = "Dimension"
hole5.Depth = 3
hole5.DrillPoint = "Flat"
hole5.Reversed = True

# Sketch on YZ plane
sketch12 = body.newObject("Sketcher::SketchObject", "Sketch011")
sketch12.AttachmentSupport = (doc.getObject("YZ_Plane"), [""])
sketch12.MapMode = "FlatFace"
sketch12.AttachmentOffset = App.Placement(V(0, 0, 59.28), App.Rotation())
sketch12.addGeometry([
    Part.Circle(V(8, -12.5, 0), V(0, 0, 1), 1.2),
    Part.Circle(V(8, 12.8, 0), V(0, 0, 1), 1.2),
    Part.Circle(V(33, 12.5, 0), V(0, 0, 1), 1.2),
    Part.Circle(V(33, -12.5, 0), V(0, 0, 1), 1.2),
], False)
sketch12.addConstraint([
    Sketcher.Constraint("Equal", 0, 1),
    Sketcher.Constraint("Equal", 1, 2),
    Sketcher.Constraint("Equal", 2, 3),
    Sketcher.Constraint("Symmetric", 2, 3, 3, 3, -1),
    Sketcher.Constraint("Horizontal", 0, 3, 3, 3),
    Sketcher.Constraint("Vertical", 0, 3, 1, 3),
    Sketcher.Constraint("Diameter", 0, Q("2.5 mm")),
    Sketcher.Constraint("DistanceX", -1, 1, 0, 3, Q("8 mm")),
    Sketcher.Constraint("DistanceX", -1, 1, 2, 3, Q("33 mm")),
    Sketcher.Constraint("DistanceY", 0, 3, 2, 3, Q("25 mm")),
    Sketcher.Constraint("DistanceY", -1, 1, 1, 3, Q("12.798633 mm")),
])
doc.recompute()
hole6 = body.newObject("PartDesign::Hole", "Hole005")
hole6.Profile = sketch12
hole6.ThreadType = "None"
hole6.Diameter = 2.5
hole6.DepthType = "Dimension"
hole6.Depth = 3
hole6.DrillPoint = "Flat"

# Sketch on XZ plane
sketch13 = body.newObject("Sketcher::SketchObject", "Sketch012")
sketch13.AttachmentSupport = (doc.getObject("XZ_Plane"), [""])
sketch13.MapMode = "FlatFace"
sketch13.AttachmentOffset = App.Placement(V(0, 0, -4), App.Rotation())
sketch13.addGeometry([
    Part.Circle(V(-4.7, 10.3, 0), V(0, 0, 1), 1.5),
    Part.Circle(V(13, -7.4, 0), V(0, 0, 1), 1.5),
], False)
sketch13.addConstraint([
    Sketcher.Constraint("Equal", 0, 1),
    Sketcher.Constraint("Diameter", 0, Q("3 mm")),
    Sketcher.Constraint("DistanceY", -1, 1, 0, 3, Q("10.253048 mm")),
    Sketcher.Constraint("DistanceX", -1, 1, 1, 3, Q("12.974552 mm")),
    Sketcher.Constraint("DistanceY", 1, 3, -1, 1, Q("7.424621 mm")),
    Sketcher.Constraint("DistanceX", 0, 3, 1, 3, Q("17.67767 mm")),
])
doc.recompute()
hole7 = body.newObject("PartDesign::Hole", "Hole006")
hole7.Profile = sketch13
hole7.ThreadType = "None"
hole7.Diameter = 3
hole7.DepthType = "Dimension"
hole7.Depth = 3
hole7.DrillPoint = "Angled"
hole7.DrillPointAngle = 118
hole7.Reversed = True

# Sketch on XZ plane
sketch14 = body.newObject("Sketcher::SketchObject", "Sketch013")
sketch14.AttachmentSupport = (doc.getObject("XZ_Plane"), [""])
sketch14.MapMode = "FlatFace"
sketch14.addGeometry(Part.Circle(V(4.2, 1.4, 0), V(0, 0, 1), 1.4), False)
sketch14.addConstraint([
    Sketcher.Constraint("Diameter", 0, Q("2.9 mm")),
    Sketcher.Constraint("DistanceY", -1, 1, 0, 3, Q("1.448571 mm")),
    Sketcher.Constraint("DistanceX", -1, 1, 0, 3, Q("4.170075 mm")),
])
doc.recompute()
hole8 = body.newObject("PartDesign::Hole", "Hole007")
hole8.Profile = sketch14
hole8.ThreadType = "None"
hole8.Diameter = 2.9
hole8.DepthType = "Dimension"
hole8.Depth = 4
hole8.DrillPoint = "Flat"
hole8.HoleCutType = "Counterbore"
hole8.HoleCutDiameter = 5.5
hole8.HoleCutDepth = 2.5

# Sketch on XZ plane
sketch15 = body.newObject("Sketcher::SketchObject", "Sketch014")
sketch15.AttachmentSupport = (doc.getObject("XZ_Plane"), [""])
sketch15.MapMode = "FlatFace"
sketch15.AttachmentOffset = App.Placement(V(0, 0, -4), App.Rotation())
sketch15.addGeometry([
    Part.Circle(V(41.1, 3.9, 0), V(0, 0, 1), 0.8),
    Part.Circle(V(33.3, -3.9, 0), V(0, 0, 1), 0.8),
], False)
sketch15.addConstraint([
    Sketcher.Constraint("Equal", 0, 1),
    Sketcher.Constraint("Diameter", 0, Q("1.5875 mm")),
    Sketcher.Constraint("DistanceX", -1, 1, 0, 3, Q("41.08622 mm")),
    Sketcher.Constraint("DistanceY", -1, 1, 0, 3, Q("3.87868 mm")),
    Sketcher.Constraint("DistanceX", -1, 1, 1, 3, Q("33.328861 mm")),
    Sketcher.Constraint("DistanceY", 1, 3, -1, 1, Q("3.87868 mm")),
])
doc.recompute()
hole9 = body.newObject("PartDesign::Hole", "Hole008")
hole9.Profile = sketch15
hole9.ThreadType = "None"
hole9.Diameter = 1.5875
hole9.DepthType = "Dimension"
hole9.Depth = 3
hole9.DrillPoint = "Angled"
hole9.DrillPointAngle = 118
hole9.Reversed = True

# Sketch on XZ plane
sketch16 = body.newObject("Sketcher::SketchObject", "Sketch015")
sketch16.AttachmentSupport = (doc.getObject("XZ_Plane"), [""])
sketch16.MapMode = "FlatFace"
sketch16.addGeometry([
    Part.Circle(V(41.1, -3.9, 0), V(0, 0, 1), 1.1),
    Part.Circle(V(33.3, 3.9, 0), V(0, 0, 1), 1.1),
], False)
sketch16.addConstraint([
    Sketcher.Constraint("Equal", 0, 1),
    Sketcher.Constraint("Diameter", 0, Q("2.2 mm")),
    Sketcher.Constraint("DistanceX", -1, 1, 0, 3, Q("41.08622 mm")),
    Sketcher.Constraint("DistanceY", 0, 3, -1, 1, Q("3.87868 mm")),
    Sketcher.Constraint("DistanceX", -1, 1, 1, 3, Q("33.328861 mm")),
    Sketcher.Constraint("DistanceY", -1, 1, 1, 3, Q("3.87868 mm")),
])
doc.recompute()
hole10 = body.newObject("PartDesign::Hole", "Hole009")
hole10.Profile = sketch16
hole10.ThreadType = "None"
hole10.Diameter = 2.2
hole10.DepthType = "Dimension"
hole10.Depth = 4
hole10.DrillPoint = "Flat"
hole10.HoleCutType = "Counterbore"
hole10.HoleCutDiameter = 4.4
hole10.HoleCutDepth = 2

# Sketch on XZ plane
sketch17 = body.newObject("Sketcher::SketchObject", "Sketch016")
sketch17.AttachmentSupport = (doc.getObject("XZ_Plane"), [""])
sketch17.MapMode = "FlatFace"
sketch17.AttachmentOffset = App.Placement(V(0, 0, -4), App.Rotation())
sketch17.addGeometry([
    Part.Circle(V(23.9, 11.8, 0), V(0, 0, 1), 1.5),
    Part.Circle(V(23.1, -10.1, 0), V(0, 0, 1), 1.5),
], False)
sketch17.addConstraint([
    Sketcher.Constraint("Equal", 0, 1),
    Sketcher.Constraint("Diameter", 0, Q("3 mm")),
    Sketcher.Constraint("DistanceY", 1, 3, 0, 3, Q("21.986598 mm")),
    Sketcher.Constraint("DistanceX", 1, 3, 0, 3, Q("0.767789 mm")),
    Sketcher.Constraint("DistanceX", -1, 1, 0, 3, Q("23.894423 mm")),
    Sketcher.Constraint("DistanceY", -1, 1, 0, 3, Q("11.836644 mm")),
])
doc.recompute()
hole11 = body.newObject("PartDesign::Hole", "Hole010")
hole11.Profile = sketch17
hole11.ThreadType = "None"
hole11.Diameter = 3
hole11.DepthType = "Dimension"
hole11.Depth = 3
hole11.DrillPoint = "Angled"
hole11.DrillPointAngle = 118
hole11.Reversed = True

# Sketch on XZ plane
sketch18 = body.newObject("Sketcher::SketchObject", "Sketch017")
sketch18.AttachmentSupport = (doc.getObject("XZ_Plane"), [""])
sketch18.MapMode = "FlatFace"
sketch18.addGeometry(Part.Circle(V(23.5, -0.7, 0), V(0, 0, 1), 1.4), False)
sketch18.addConstraint([
    Sketcher.Constraint("Diameter", 0, Q("2.9 mm")),
    Sketcher.Constraint("DistanceX", -1, 1, 0, 3, Q("23.458179 mm")),
    Sketcher.Constraint("DistanceY", 0, 3, -1, 1, Q("0.655741 mm")),
])
doc.recompute()
hole12 = body.newObject("PartDesign::Hole", "Hole011")
hole12.Profile = sketch18
hole12.ThreadType = "None"
hole12.Diameter = 2.9
hole12.DepthType = "Dimension"
hole12.Depth = 4
hole12.DrillPoint = "Flat"
hole12.HoleCutType = "Counterbore"
hole12.HoleCutDiameter = 5.5
hole12.HoleCutDepth = 2.5

# Sketch on XZ plane
sketch19 = body.newObject("Sketcher::SketchObject", "Sketch018")
sketch19.AttachmentSupport = (doc.getObject("XZ_Plane"), [""])
sketch19.MapMode = "FlatFace"
sketch19.AttachmentOffset = App.Placement(V(0, 0, -41.5), App.Rotation())
sketch19.addGeometry([
    Part.Circle(V(57.3, 19.5, 0), V(0, 0, 1), 0.8),  # 0
    Part.Circle(V(3.4, 19.5, 0), V(0, 0, 1), 0.8),  # 1
    Part.Circle(V(-48.8, 19.5, 0), V(0, 0, 1), 0.8),  # 2
    Part.Circle(V(-48.8, -19.5, 0), V(0, 0, 1), 0.8),  # 3
    Part.Circle(V(3.4, -19.5, 0), V(0, 0, 1), 0.8),  # 4
    Part.Circle(V(57.3, -19.5, 0), V(0, 0, 1), 0.8),  # 5
], False)
sketch19.addConstraint([
    Sketcher.Constraint("Equal", 0, 1),
    Sketcher.Constraint("Equal", 1, 2),
    Sketcher.Constraint("Equal", 2, 3),
    Sketcher.Constraint("Equal", 3, 4),
    Sketcher.Constraint("Equal", 4, 5),
    Sketcher.Constraint("Symmetric", 2, 3, 3, 3, -1),
    Sketcher.Constraint("Symmetric", 1, 3, 4, 3, -1),
    Sketcher.Constraint("Symmetric", 0, 3, 5, 3, -1),
    Sketcher.Constraint("Horizontal", 0, 3, 1, 3),
    Sketcher.Constraint("Horizontal", 1, 3, 2, 3),
    Sketcher.Constraint("Diameter", 0, Q("1.6 mm")),
    Sketcher.Constraint("DistanceY", 3, 3, 2, 3, Q("39 mm")),
    Sketcher.Constraint("DistanceX", -1, 1, 0, 3, Q("57.28 mm")),
    Sketcher.Constraint("DistanceX", 2, 3, -1, 1, Q("48.78 mm")),
    Sketcher.Constraint("DistanceX", -1, 1, 1, 3, Q("3.420478 mm")),
])
doc.recompute()
hole13 = body.newObject("PartDesign::Hole", "Hole012")
hole13.Profile = sketch19
hole13.ThreadType = "None"
hole13.Diameter = 1.6
hole13.DepthType = "Dimension"
hole13.Depth = 5.2
hole13.DrillPoint = "Angled"
hole13.DrillPointAngle = 118
hole13.Reversed = True

doc.recompute()
